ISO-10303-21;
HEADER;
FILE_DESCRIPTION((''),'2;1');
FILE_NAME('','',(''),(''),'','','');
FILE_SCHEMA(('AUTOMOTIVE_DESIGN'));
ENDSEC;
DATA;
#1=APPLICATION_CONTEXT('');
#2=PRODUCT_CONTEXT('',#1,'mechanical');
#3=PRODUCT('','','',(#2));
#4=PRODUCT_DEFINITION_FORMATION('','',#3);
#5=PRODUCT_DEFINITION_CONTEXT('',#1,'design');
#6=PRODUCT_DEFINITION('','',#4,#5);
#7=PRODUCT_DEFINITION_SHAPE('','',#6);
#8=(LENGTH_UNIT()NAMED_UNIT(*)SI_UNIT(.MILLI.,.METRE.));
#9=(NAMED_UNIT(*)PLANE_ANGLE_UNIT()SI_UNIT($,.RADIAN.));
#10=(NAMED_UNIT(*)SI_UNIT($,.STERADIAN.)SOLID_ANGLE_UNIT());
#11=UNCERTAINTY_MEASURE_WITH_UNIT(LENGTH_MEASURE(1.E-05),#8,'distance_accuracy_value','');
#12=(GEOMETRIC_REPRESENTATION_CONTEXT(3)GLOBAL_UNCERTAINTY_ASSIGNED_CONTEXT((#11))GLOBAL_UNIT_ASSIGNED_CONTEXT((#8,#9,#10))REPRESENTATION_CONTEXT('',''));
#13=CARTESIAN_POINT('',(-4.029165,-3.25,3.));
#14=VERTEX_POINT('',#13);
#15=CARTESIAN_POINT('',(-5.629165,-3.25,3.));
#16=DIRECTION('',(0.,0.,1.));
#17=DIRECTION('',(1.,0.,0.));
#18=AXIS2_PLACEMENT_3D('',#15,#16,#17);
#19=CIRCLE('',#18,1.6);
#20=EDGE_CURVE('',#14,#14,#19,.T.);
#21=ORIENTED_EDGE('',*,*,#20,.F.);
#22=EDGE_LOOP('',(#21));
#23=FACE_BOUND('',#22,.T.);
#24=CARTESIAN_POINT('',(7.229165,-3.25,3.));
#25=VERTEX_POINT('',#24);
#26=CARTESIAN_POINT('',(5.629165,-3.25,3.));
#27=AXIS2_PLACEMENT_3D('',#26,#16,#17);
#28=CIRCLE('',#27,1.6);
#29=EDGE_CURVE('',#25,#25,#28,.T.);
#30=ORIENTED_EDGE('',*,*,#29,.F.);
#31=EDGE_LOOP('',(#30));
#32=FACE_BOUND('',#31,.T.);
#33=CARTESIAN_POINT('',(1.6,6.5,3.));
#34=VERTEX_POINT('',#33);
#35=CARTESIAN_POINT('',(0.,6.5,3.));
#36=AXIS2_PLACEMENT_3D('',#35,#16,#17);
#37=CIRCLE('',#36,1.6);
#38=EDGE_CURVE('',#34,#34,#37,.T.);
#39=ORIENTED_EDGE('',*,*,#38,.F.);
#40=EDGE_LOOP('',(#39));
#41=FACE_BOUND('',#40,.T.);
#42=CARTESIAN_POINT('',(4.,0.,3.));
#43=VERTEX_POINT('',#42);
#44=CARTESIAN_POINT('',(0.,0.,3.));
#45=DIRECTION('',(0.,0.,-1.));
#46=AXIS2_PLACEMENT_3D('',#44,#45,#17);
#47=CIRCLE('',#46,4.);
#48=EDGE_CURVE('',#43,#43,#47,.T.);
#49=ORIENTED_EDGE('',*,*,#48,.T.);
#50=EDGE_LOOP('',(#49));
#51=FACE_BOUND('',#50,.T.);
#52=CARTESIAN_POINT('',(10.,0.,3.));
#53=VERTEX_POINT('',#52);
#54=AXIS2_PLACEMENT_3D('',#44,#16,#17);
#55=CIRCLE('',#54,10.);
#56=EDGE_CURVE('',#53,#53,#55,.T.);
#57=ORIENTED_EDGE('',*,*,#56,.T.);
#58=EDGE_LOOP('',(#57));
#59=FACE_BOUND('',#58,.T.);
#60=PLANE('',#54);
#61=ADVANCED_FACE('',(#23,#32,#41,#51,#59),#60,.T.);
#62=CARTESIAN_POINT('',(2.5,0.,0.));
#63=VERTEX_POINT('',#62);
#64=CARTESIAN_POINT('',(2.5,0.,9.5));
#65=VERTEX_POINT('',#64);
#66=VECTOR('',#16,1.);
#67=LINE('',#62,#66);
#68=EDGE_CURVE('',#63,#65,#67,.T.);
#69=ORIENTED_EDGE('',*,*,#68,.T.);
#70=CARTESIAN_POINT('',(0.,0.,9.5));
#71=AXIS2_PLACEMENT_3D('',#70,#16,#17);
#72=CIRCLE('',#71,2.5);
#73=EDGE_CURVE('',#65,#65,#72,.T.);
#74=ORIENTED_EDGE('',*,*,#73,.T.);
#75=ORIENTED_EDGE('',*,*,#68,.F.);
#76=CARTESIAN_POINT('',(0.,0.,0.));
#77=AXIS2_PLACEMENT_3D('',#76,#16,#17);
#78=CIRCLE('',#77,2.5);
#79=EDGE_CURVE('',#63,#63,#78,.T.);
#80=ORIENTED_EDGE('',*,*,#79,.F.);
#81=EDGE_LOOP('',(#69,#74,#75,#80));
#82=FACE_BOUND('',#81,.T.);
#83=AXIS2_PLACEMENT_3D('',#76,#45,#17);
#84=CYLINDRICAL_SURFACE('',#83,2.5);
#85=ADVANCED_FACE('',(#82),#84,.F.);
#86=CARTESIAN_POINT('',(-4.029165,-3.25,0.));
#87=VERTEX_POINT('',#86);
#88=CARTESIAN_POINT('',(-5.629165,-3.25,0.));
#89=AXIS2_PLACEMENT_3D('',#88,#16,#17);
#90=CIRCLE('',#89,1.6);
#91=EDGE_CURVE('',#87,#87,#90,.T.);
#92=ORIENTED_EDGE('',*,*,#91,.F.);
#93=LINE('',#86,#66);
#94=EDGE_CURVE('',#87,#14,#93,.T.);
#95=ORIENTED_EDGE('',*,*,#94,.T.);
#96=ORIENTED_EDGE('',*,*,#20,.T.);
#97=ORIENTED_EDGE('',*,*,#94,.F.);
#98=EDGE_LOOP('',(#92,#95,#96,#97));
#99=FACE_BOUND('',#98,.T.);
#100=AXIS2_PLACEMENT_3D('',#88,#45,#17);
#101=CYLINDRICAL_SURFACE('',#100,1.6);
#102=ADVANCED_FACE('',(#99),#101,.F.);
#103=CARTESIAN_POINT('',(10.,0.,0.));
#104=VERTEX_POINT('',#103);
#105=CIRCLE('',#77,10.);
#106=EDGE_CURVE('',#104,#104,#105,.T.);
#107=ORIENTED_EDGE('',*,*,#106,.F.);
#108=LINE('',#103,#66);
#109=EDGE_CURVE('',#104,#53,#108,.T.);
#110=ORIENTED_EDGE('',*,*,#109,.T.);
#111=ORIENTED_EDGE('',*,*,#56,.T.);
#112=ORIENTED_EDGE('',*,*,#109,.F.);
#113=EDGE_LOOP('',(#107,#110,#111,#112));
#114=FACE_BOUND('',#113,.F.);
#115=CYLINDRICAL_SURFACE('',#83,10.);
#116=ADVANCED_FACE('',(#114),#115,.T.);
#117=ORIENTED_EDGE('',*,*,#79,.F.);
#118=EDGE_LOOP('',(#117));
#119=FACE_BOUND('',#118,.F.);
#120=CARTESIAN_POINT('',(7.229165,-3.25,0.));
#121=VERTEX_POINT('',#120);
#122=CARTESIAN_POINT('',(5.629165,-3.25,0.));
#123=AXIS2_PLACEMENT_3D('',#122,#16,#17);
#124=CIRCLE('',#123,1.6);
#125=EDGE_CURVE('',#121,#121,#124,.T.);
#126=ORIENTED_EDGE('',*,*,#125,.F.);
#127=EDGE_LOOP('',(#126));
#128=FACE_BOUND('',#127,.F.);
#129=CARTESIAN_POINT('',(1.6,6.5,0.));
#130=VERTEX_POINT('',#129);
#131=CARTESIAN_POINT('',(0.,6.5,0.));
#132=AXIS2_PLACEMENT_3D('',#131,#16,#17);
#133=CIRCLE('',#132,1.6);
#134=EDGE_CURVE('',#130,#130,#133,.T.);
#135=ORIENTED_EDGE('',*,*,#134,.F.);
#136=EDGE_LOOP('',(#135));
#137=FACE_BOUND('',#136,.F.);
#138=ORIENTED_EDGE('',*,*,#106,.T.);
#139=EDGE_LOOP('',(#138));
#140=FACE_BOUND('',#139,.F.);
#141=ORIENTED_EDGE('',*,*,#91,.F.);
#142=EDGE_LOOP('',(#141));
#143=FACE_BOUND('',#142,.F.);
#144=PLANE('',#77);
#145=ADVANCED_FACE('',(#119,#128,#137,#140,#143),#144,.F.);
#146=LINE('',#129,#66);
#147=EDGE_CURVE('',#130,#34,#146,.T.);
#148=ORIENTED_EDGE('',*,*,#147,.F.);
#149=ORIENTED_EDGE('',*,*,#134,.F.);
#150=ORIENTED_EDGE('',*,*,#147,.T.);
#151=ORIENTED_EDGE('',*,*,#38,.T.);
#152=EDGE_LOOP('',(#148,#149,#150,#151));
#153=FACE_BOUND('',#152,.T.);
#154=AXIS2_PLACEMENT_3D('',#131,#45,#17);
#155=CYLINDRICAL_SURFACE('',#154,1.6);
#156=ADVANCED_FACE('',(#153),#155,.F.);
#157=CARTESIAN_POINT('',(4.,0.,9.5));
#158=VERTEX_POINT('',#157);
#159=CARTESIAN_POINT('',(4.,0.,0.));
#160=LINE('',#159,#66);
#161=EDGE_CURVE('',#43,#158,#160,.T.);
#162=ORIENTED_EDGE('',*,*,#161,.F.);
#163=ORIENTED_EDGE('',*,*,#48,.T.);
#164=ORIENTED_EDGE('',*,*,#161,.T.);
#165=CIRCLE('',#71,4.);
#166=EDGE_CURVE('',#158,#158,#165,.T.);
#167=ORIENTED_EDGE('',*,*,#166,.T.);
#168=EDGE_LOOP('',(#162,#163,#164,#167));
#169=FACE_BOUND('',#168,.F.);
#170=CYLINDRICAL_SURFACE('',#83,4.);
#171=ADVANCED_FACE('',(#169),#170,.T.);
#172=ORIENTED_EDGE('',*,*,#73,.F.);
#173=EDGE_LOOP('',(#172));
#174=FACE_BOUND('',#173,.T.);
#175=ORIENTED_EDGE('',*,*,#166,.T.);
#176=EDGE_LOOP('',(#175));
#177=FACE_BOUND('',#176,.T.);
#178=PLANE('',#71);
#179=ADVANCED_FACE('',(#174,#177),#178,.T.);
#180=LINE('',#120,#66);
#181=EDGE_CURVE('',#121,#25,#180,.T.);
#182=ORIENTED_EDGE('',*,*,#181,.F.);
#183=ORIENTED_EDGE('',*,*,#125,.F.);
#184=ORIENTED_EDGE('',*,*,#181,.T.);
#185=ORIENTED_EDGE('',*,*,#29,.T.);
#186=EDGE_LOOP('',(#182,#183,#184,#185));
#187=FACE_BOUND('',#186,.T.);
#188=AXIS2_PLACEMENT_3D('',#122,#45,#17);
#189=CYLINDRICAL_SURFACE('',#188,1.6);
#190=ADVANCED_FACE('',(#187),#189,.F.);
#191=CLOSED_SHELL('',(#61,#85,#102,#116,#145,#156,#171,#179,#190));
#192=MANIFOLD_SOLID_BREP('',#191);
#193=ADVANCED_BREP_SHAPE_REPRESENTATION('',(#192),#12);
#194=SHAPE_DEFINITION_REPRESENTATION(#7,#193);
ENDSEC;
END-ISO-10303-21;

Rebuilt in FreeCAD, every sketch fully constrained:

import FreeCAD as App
import Part
import Sketcher
from FreeCAD import Vector

doc = App.newDocument("Part")
body = doc.addObject("PartDesign::Body", "Body")

# Sketch on XY plane
sketch1 = body.newObject("Sketcher::SketchObject", "Sketch")
sketch1.AttachmentSupport = (doc.getObject("XY_Plane"), [""])
sketch1.MapMode = "FlatFace"
sketch1.addGeometry(Part.Circle(Vector(0, 0, 0), Vector(0, 0, 1), 10), False)
sketch1.addGeometry(Part.Circle(Vector(-5.6, -3.2, 0), Vector(0, 0, 1), 1.6), False)
sketch1.addGeometry(Part.Circle(Vector(5.6, -3.2, 0), Vector(0, 0, 1), 1.6), False)
sketch1.addGeometry(Part.Circle(Vector(0, 0, 0), Vector(0, 0, 1), 2.5), False)
sketch1.addGeometry(Part.Circle(Vector(0, 6.5, 0), Vector(0, 0, 1), 1.6), False)
sketch1.addConstraint(Sketcher.Constraint("Coincident", 0, 3, -1, 1))
sketch1.addConstraint(Sketcher.Constraint("Coincident", 3, 3, -1, 1))
sketch1.addConstraint(Sketcher.Constraint("Equal", 1, 2))
sketch1.addConstraint(Sketcher.Constraint("Equal", 2, 4))
sketch1.addConstraint(Sketcher.Constraint("Symmetric", 1, 3, 2, 3, -2))
sketch1.addConstraint(Sketcher.Constraint("PointOnObject", 4, 3, -2))
sketch1.addConstraint(Sketcher.Constraint("Diameter", 0, 20.0))
sketch1.addConstraint(Sketcher.Constraint("Diameter", 3, 5.0))
sketch1.addConstraint(Sketcher.Constraint("Diameter", 1, 3.2))
sketch1.addConstraint(Sketcher.Constraint("DistanceY", -1, 1, 4, 3, 6.5))
sketch1.addConstraint(Sketcher.Constraint("DistanceY", 1, 3, -1, 1, 3.25))
sketch1.addConstraint(Sketcher.Constraint("DistanceX", 1, 3, 2, 3, 11.25833))
pad1 = body.newObject("PartDesign::Pad", "Pad")
pad1.Profile = sketch1
pad1.Length = 3

# Sketch on XY plane
sketch2 = body.newObject("Sketcher::SketchObject", "Sketch001")
sketch2.AttachmentSupport = (doc.getObject("XY_Plane"), [""])
sketch2.MapMode = "FlatFace"
sketch2.addGeometry(Part.Circle(Vector(0, 0, 0), Vector(0, 0, 1), 4), False)
sketch2.addGeometry(Part.Circle(Vector(0, 0, 0), Vector(0, 0, 1), 2.5), False)
sketch2.addConstraint(Sketcher.Constraint("Coincident", 0, 3, -1, 1))
sketch2.addConstraint(Sketcher.Constraint("Coincident", 1, 3, -1, 1))
sketch2.addConstraint(Sketcher.Constraint("Diameter", 0, 8.0))
sketch2.addConstraint(Sketcher.Constraint("Diameter", 1, 5.0))
pad2 = body.newObject("PartDesign::Pad", "Pad001")
pad2.Profile = sketch2
pad2.Length = 9.5

doc.recompute()
